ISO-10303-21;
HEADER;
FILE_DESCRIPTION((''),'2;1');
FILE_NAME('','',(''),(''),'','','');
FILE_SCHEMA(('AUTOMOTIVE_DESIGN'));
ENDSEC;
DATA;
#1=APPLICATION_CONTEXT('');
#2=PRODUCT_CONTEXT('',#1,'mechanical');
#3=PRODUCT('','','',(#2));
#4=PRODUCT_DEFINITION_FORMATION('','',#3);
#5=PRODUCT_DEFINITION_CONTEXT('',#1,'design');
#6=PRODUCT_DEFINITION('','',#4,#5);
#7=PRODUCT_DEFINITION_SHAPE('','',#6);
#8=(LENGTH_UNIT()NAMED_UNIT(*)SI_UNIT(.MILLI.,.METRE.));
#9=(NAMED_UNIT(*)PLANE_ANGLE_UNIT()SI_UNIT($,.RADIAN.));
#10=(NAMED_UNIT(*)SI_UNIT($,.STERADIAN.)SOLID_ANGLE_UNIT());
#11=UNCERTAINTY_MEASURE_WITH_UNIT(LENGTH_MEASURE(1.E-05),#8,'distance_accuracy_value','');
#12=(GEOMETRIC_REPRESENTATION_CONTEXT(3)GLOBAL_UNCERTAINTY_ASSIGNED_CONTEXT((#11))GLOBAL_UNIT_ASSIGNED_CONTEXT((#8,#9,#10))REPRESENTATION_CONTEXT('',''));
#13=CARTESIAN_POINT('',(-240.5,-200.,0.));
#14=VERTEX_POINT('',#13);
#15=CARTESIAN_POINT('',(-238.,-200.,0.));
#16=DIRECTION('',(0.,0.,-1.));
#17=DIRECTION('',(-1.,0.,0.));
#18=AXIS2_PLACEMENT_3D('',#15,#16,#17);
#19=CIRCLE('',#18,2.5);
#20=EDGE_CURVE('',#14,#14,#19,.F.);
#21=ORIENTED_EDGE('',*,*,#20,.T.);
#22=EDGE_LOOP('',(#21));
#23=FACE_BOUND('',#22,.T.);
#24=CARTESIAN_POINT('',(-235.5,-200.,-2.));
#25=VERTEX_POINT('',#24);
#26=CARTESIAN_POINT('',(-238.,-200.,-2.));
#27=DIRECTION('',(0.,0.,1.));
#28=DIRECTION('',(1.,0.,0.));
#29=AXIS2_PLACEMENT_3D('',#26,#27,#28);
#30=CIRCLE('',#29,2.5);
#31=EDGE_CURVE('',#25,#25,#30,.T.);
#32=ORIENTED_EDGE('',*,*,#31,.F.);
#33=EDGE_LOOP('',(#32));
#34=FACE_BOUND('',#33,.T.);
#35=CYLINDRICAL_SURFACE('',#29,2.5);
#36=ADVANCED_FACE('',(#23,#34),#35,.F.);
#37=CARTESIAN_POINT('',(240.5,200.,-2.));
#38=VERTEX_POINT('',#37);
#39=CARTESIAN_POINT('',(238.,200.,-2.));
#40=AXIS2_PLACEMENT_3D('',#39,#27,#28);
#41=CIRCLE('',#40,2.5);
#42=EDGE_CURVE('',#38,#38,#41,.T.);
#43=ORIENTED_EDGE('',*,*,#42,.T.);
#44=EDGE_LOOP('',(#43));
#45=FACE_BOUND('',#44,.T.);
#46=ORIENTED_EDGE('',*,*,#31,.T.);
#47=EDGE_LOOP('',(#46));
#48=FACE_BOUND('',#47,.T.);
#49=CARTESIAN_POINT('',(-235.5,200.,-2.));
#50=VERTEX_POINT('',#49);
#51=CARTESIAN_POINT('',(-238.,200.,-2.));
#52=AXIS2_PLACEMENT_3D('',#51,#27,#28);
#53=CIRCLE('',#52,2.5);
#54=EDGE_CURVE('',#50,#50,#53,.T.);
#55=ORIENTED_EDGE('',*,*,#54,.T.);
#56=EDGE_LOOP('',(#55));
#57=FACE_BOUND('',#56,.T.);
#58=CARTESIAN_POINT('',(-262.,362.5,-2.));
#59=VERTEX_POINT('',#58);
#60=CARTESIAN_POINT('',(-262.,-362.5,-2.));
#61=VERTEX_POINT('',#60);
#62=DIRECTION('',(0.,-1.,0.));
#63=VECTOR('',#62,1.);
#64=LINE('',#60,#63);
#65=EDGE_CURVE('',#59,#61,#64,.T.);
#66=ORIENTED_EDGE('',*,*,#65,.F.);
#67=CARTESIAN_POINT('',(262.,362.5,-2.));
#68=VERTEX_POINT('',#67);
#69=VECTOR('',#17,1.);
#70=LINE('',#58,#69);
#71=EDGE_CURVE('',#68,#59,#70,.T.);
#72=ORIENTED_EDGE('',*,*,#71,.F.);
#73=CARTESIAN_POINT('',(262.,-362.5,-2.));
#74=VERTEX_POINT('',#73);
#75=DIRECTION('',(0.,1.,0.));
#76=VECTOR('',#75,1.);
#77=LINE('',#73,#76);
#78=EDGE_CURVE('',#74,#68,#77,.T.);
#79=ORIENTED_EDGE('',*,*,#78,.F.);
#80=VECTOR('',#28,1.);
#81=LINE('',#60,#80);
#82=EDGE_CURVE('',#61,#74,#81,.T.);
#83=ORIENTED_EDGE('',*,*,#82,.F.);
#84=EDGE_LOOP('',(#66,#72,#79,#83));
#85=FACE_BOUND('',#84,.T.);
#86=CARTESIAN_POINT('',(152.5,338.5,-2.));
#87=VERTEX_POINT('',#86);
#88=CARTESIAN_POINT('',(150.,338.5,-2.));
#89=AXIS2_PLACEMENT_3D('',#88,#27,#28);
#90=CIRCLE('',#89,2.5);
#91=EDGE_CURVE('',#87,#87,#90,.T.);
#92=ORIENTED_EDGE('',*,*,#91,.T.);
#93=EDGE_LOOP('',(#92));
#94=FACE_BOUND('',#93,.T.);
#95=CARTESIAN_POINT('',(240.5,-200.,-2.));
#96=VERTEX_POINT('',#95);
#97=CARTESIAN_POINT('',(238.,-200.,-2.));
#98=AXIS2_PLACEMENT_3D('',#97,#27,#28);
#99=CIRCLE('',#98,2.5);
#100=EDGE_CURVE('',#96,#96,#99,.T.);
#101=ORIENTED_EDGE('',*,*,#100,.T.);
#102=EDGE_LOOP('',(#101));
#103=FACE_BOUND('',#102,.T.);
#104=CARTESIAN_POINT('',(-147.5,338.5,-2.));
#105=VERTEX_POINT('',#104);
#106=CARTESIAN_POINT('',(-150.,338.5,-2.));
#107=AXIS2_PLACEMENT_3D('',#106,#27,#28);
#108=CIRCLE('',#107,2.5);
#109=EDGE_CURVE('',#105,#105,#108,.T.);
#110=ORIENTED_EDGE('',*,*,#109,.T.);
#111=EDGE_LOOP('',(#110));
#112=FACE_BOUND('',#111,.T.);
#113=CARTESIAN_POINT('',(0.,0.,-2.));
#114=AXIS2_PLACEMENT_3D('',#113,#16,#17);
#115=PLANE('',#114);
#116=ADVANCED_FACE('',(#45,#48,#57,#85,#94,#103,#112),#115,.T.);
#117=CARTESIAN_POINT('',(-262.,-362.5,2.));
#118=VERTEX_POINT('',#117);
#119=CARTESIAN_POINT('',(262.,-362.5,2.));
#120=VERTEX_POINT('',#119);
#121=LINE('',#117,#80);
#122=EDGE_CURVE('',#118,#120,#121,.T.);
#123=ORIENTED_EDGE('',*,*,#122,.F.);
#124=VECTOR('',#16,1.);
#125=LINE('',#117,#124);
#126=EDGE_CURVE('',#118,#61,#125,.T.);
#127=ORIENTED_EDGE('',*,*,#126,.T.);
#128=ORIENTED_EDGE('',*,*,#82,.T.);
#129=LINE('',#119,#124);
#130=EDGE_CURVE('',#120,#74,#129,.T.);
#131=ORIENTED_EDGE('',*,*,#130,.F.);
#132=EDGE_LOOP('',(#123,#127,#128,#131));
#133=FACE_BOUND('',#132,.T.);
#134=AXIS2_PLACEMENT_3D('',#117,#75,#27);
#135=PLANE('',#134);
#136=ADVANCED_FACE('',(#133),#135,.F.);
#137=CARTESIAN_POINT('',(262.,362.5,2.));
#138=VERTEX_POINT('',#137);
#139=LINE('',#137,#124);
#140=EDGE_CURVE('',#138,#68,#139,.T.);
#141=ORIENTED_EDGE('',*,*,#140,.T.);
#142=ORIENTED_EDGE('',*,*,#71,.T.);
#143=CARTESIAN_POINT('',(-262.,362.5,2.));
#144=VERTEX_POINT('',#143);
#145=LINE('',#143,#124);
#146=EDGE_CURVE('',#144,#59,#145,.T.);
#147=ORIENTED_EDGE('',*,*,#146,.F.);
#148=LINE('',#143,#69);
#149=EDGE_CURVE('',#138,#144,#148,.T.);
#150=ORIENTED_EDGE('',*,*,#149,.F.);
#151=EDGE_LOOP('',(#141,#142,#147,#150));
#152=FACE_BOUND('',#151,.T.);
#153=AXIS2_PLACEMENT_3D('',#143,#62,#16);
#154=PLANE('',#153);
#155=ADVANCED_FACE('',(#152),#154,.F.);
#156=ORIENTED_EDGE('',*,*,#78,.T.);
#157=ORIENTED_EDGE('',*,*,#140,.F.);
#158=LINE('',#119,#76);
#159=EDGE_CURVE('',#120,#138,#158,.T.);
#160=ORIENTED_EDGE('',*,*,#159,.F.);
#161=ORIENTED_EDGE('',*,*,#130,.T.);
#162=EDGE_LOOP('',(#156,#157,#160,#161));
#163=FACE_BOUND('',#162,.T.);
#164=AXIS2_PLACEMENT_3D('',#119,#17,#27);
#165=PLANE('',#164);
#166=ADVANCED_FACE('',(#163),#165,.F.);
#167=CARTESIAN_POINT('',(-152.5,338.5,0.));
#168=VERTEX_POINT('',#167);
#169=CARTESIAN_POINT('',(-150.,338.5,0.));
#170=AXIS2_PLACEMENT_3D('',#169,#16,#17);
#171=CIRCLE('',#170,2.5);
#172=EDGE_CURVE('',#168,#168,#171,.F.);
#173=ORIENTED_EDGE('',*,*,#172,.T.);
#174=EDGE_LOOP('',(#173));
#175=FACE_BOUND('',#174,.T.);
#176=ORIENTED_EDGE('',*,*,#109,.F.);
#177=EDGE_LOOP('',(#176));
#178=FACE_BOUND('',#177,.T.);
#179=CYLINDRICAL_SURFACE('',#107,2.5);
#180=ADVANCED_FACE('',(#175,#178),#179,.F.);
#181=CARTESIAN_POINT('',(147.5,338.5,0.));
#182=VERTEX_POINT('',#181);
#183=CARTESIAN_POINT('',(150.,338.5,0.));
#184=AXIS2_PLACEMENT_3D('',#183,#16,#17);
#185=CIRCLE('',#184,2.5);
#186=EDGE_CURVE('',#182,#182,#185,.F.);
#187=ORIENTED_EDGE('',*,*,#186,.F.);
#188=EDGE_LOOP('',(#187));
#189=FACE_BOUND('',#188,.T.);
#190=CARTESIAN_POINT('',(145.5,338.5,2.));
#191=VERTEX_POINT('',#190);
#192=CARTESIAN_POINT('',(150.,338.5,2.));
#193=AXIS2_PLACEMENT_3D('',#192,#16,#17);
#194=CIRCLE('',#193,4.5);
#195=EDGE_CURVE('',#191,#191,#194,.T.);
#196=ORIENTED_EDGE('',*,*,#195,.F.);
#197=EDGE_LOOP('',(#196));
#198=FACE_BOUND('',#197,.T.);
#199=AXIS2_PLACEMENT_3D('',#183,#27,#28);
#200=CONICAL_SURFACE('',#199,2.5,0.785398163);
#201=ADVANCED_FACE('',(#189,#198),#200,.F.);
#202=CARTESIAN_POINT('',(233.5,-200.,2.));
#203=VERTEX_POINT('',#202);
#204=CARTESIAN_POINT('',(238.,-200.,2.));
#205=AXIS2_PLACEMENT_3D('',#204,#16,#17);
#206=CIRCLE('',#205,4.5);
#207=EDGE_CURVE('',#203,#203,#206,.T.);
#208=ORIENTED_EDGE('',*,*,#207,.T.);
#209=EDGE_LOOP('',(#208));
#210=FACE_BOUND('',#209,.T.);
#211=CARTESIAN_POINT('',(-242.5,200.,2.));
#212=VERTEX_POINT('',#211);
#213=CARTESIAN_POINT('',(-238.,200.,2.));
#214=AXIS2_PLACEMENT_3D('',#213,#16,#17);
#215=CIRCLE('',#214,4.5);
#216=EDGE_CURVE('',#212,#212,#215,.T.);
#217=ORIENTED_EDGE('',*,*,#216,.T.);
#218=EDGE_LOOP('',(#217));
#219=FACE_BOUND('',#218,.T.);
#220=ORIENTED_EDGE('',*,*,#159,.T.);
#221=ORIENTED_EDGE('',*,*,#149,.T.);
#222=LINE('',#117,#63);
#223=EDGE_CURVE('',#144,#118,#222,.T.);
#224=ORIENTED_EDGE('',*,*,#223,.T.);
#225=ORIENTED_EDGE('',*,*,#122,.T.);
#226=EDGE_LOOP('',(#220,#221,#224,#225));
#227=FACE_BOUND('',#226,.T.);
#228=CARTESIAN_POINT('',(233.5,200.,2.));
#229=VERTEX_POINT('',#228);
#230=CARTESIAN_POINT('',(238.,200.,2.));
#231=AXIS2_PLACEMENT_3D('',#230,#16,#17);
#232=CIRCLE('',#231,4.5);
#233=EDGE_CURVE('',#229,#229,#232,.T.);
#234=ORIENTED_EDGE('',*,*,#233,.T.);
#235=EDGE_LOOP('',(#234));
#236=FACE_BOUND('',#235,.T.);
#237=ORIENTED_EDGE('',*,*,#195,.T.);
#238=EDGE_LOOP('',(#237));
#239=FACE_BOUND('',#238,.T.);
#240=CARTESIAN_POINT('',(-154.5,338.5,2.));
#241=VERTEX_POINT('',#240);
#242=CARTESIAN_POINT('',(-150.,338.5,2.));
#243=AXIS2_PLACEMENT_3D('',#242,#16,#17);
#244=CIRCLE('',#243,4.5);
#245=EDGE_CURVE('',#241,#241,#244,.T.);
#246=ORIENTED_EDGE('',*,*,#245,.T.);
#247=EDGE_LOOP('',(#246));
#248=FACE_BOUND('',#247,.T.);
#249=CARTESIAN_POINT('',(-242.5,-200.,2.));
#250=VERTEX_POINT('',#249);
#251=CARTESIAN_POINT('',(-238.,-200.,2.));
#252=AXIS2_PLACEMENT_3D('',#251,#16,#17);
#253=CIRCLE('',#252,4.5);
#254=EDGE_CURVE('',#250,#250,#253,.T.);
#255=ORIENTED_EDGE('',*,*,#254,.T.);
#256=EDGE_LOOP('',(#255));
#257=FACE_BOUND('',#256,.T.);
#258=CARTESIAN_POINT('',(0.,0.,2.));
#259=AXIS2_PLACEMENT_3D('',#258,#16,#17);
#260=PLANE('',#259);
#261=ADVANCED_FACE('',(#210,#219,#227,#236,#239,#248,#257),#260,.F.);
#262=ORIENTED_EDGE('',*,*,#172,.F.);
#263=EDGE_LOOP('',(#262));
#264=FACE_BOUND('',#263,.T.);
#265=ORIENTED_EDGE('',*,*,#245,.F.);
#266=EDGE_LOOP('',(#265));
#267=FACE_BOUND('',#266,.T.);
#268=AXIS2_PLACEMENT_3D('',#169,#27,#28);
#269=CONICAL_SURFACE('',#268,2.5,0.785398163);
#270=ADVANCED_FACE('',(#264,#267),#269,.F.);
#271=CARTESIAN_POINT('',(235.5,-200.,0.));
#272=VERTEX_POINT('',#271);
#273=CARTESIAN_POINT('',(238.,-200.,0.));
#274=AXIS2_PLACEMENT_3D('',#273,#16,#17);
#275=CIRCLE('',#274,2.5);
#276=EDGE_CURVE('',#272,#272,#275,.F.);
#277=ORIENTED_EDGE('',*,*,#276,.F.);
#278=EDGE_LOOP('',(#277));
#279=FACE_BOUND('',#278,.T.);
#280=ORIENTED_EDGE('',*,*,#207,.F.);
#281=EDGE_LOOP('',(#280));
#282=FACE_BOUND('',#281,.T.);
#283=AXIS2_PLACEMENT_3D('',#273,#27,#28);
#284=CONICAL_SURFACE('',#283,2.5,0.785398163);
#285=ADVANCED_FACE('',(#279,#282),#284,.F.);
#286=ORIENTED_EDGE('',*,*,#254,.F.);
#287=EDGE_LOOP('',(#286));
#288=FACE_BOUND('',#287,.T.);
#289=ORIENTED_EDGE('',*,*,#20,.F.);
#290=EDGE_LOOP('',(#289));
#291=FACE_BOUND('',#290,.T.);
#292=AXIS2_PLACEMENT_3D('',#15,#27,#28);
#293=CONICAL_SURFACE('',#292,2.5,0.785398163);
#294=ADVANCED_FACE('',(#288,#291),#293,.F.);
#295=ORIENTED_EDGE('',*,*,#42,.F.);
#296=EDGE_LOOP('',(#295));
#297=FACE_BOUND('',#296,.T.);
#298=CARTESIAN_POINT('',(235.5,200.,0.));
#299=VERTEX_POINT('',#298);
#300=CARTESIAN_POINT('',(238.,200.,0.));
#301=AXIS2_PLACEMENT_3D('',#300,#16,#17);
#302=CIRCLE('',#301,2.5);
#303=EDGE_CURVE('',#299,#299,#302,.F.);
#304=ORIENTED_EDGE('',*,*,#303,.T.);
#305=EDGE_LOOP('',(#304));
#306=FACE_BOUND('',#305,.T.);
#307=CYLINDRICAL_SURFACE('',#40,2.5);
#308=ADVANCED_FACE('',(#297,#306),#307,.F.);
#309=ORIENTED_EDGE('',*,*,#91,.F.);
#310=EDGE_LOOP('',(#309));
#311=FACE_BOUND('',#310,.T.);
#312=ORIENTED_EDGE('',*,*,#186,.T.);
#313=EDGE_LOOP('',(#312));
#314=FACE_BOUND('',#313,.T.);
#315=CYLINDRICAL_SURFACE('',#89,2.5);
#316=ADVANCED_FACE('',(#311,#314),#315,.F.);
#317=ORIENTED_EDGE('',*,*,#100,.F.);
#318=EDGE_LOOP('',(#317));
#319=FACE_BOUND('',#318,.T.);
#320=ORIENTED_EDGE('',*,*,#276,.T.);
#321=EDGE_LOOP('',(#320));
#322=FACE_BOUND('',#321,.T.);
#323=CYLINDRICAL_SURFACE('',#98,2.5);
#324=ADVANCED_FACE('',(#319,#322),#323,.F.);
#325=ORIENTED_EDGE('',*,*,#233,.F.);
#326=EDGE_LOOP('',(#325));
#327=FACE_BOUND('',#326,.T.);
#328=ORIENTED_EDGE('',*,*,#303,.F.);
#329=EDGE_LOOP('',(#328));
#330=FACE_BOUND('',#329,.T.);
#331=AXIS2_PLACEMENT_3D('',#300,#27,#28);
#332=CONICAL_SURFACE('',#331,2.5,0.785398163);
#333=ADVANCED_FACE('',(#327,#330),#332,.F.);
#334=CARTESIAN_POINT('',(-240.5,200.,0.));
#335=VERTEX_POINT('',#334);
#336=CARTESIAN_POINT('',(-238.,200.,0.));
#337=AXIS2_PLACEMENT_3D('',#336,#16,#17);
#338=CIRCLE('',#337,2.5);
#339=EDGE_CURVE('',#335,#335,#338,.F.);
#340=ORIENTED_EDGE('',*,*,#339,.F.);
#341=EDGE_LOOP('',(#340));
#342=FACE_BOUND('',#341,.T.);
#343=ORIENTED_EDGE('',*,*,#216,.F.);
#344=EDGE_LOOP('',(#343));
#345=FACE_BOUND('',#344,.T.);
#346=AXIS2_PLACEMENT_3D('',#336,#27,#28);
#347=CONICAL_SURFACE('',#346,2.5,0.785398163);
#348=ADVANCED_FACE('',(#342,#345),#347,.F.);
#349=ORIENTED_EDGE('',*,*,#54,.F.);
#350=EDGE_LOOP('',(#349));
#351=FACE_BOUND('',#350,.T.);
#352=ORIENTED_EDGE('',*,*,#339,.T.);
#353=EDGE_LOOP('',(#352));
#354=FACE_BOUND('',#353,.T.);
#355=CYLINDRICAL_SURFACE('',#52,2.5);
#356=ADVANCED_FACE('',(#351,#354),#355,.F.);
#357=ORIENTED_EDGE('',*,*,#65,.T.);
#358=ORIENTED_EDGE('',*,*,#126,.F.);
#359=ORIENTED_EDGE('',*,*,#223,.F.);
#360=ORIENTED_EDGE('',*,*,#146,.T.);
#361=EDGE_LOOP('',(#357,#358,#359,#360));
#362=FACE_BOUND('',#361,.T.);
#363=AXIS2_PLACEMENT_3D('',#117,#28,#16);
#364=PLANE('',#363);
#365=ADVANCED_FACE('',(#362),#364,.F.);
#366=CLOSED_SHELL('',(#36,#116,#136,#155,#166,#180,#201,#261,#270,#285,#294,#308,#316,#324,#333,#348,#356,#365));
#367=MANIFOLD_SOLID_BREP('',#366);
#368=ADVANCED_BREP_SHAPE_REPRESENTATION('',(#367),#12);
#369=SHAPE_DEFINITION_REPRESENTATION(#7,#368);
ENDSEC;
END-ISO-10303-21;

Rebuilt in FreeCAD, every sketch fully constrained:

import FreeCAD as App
import Part
import Sketcher

V = App.Vector
Q = App.Units.Quantity


def edges_at(feature, points):
    """Names of the edges that pass closest to the given points."""
    edges = feature.Shape.Edges
    near = lambda p: min(range(len(edges)), key=lambda i: edges[i].distToShape(Part.Vertex(*p))[0])
    return sorted({f"Edge{near(p) + 1}" for p in points})


def add_polygon(sketch, points):
    """Adds a closed chain of lines whose ends are joined by coincident constraints."""
    first, n = sketch.GeometryCount, len(points)
    for a, b in zip(points, points[1:] + points[:1]):
        sketch.addGeometry(Part.LineSegment(App.Vector(*a, 0), App.Vector(*b, 0)), False)
    for i in range(n):
        sketch.addConstraint(Sketcher.Constraint("Coincident", first + i, 2, first + (i + 1) % n, 1))

doc = App.newDocument("Part")
params = doc.addObject("Spreadsheet::Sheet", "Params")
for row, (alias, value) in enumerate([
    ("sketch1_width", "524 mm"),
    ("sketch1_height", "725 mm"),
    ("pad1_length", "4 mm"),
    ("sketch2_diameter", "5 mm"),
    ("chamfer_size", "2 mm"),
], start=1):
    params.set(f"A{row}", alias)
    params.set(f"B{row}", "=" + value)
    params.setAlias(f"B{row}", alias)

body = doc.addObject("PartDesign::Body", "Body")

# Sketch on XY plane
sketch1 = body.newObject("Sketcher::SketchObject", "Sketch")
sketch1.AttachmentSupport = (doc.getObject("XY_Plane"), [""])
sketch1.MapMode = "FlatFace"
add_polygon(sketch1, [(-262, 362), (-262, -362), (262, -362), (262, 362)])  # lines 0-3
sketch1.addConstraint([
    Sketcher.Constraint("Vertical", 0),
    Sketcher.Constraint("Horizontal", 1),
    Sketcher.Constraint("Vertical", 2),
    Sketcher.Constraint("Horizontal", 3),
    Sketcher.Constraint("Symmetric", 0, 2, 2, 2, -1, 1),
    Sketcher.Constraint("DistanceX", 1, 1, 1, 2, Q("524 mm")),
    Sketcher.Constraint("DistanceY", 0, 2, 0, 1, Q("725 mm")),
])
sketch1.setExpression("Constraints[9]", "Params.sketch1_width")
sketch1.setExpression("Constraints[10]", "Params.sketch1_height")
pad1 = body.newObject("PartDesign::Pad", "Pad")
pad1.Profile = sketch1
pad1.setExpression("Length", "Params.pad1_length")
pad1.Midplane = True

# Sketch on XY plane
sketch2 = body.newObject("Sketcher::SketchObject", "Sketch001")
sketch2.AttachmentSupport = (doc.getObject("XY_Plane"), [""])
sketch2.MapMode = "FlatFace"
sketch2.AttachmentOffset = App.Placement(V(0, 0, 2), App.Rotation())
sketch2.addGeometry([
    Part.Circle(V(-238, -200, 0), V(0, 0, 1), 2.5),  # 0
    Part.Circle(V(-238, 200, 0), V(0, 0, 1), 2.5),  # 1
    Part.Circle(V(238, -200, 0), V(0, 0, 1), 2.5),  # 2
    Part.Circle(V(238, 200, 0), V(0, 0, 1), 2.5),  # 3
    Part.Circle(V(-150, 338.5, 0), V(0, 0, 1), 2.5),  # 4
    Part.Circle(V(150, 338.5, 0), V(0, 0, 1), 2.5),  # 5
], False)
sketch2.addConstraint([
    Sketcher.Constraint("Equal", 0, 1),
    Sketcher.Constraint("Equal", 1, 2),
    Sketcher.Constraint("Equal", 2, 3),
    Sketcher.Constraint("Equal", 3, 4),
    Sketcher.Constraint("Equal", 4, 5),
    Sketcher.Constraint("Symmetric", 1, 3, 2, 3, -1, 1),
    Sketcher.Constraint("Symmetric", 0, 3, 3, 3, -1, 1),
    Sketcher.Constraint("Symmetric", 0, 3, 2, 3, -2),
    Sketcher.Constraint("Symmetric", 4, 3, 5, 3, -2),
    Sketcher.Constraint("Diameter", 0, Q("5 mm")),
    Sketcher.Constraint("DistanceX", 0, 3, -1, 1, Q("238 mm")),
    Sketcher.Constraint("DistanceY", 0, 3, -1, 1, Q("200 mm")),
    Sketcher.Constraint("DistanceX", 4, 3, -1, 1, Q("150 mm")),
    Sketcher.Constraint("DistanceY", -1, 1, 4, 3, Q("338.5 mm")),
])
sketch2.setExpression("Constraints[9]", "Params.sketch2_diameter")
pocket1 = body.newObject("PartDesign::Pocket", "Pocket")
pocket1.Profile = sketch2
pocket1.Type = "ThroughAll"
doc.recompute()

chamfer = body.newObject("PartDesign::Chamfer", "Chamfer")
chamfer.Base = (pocket1, edges_at(pocket1, [
    (-152.5, 338.5, 2),
    (235.5, 200, 2),
    (235.5, -200, 2),
    (-240.5, 200, 2),
    (147.5, 338.5, 2),
    (-240.5, -200, 2),
]))
chamfer.setExpression("Size", "Params.chamfer_size")

doc.recompute()
